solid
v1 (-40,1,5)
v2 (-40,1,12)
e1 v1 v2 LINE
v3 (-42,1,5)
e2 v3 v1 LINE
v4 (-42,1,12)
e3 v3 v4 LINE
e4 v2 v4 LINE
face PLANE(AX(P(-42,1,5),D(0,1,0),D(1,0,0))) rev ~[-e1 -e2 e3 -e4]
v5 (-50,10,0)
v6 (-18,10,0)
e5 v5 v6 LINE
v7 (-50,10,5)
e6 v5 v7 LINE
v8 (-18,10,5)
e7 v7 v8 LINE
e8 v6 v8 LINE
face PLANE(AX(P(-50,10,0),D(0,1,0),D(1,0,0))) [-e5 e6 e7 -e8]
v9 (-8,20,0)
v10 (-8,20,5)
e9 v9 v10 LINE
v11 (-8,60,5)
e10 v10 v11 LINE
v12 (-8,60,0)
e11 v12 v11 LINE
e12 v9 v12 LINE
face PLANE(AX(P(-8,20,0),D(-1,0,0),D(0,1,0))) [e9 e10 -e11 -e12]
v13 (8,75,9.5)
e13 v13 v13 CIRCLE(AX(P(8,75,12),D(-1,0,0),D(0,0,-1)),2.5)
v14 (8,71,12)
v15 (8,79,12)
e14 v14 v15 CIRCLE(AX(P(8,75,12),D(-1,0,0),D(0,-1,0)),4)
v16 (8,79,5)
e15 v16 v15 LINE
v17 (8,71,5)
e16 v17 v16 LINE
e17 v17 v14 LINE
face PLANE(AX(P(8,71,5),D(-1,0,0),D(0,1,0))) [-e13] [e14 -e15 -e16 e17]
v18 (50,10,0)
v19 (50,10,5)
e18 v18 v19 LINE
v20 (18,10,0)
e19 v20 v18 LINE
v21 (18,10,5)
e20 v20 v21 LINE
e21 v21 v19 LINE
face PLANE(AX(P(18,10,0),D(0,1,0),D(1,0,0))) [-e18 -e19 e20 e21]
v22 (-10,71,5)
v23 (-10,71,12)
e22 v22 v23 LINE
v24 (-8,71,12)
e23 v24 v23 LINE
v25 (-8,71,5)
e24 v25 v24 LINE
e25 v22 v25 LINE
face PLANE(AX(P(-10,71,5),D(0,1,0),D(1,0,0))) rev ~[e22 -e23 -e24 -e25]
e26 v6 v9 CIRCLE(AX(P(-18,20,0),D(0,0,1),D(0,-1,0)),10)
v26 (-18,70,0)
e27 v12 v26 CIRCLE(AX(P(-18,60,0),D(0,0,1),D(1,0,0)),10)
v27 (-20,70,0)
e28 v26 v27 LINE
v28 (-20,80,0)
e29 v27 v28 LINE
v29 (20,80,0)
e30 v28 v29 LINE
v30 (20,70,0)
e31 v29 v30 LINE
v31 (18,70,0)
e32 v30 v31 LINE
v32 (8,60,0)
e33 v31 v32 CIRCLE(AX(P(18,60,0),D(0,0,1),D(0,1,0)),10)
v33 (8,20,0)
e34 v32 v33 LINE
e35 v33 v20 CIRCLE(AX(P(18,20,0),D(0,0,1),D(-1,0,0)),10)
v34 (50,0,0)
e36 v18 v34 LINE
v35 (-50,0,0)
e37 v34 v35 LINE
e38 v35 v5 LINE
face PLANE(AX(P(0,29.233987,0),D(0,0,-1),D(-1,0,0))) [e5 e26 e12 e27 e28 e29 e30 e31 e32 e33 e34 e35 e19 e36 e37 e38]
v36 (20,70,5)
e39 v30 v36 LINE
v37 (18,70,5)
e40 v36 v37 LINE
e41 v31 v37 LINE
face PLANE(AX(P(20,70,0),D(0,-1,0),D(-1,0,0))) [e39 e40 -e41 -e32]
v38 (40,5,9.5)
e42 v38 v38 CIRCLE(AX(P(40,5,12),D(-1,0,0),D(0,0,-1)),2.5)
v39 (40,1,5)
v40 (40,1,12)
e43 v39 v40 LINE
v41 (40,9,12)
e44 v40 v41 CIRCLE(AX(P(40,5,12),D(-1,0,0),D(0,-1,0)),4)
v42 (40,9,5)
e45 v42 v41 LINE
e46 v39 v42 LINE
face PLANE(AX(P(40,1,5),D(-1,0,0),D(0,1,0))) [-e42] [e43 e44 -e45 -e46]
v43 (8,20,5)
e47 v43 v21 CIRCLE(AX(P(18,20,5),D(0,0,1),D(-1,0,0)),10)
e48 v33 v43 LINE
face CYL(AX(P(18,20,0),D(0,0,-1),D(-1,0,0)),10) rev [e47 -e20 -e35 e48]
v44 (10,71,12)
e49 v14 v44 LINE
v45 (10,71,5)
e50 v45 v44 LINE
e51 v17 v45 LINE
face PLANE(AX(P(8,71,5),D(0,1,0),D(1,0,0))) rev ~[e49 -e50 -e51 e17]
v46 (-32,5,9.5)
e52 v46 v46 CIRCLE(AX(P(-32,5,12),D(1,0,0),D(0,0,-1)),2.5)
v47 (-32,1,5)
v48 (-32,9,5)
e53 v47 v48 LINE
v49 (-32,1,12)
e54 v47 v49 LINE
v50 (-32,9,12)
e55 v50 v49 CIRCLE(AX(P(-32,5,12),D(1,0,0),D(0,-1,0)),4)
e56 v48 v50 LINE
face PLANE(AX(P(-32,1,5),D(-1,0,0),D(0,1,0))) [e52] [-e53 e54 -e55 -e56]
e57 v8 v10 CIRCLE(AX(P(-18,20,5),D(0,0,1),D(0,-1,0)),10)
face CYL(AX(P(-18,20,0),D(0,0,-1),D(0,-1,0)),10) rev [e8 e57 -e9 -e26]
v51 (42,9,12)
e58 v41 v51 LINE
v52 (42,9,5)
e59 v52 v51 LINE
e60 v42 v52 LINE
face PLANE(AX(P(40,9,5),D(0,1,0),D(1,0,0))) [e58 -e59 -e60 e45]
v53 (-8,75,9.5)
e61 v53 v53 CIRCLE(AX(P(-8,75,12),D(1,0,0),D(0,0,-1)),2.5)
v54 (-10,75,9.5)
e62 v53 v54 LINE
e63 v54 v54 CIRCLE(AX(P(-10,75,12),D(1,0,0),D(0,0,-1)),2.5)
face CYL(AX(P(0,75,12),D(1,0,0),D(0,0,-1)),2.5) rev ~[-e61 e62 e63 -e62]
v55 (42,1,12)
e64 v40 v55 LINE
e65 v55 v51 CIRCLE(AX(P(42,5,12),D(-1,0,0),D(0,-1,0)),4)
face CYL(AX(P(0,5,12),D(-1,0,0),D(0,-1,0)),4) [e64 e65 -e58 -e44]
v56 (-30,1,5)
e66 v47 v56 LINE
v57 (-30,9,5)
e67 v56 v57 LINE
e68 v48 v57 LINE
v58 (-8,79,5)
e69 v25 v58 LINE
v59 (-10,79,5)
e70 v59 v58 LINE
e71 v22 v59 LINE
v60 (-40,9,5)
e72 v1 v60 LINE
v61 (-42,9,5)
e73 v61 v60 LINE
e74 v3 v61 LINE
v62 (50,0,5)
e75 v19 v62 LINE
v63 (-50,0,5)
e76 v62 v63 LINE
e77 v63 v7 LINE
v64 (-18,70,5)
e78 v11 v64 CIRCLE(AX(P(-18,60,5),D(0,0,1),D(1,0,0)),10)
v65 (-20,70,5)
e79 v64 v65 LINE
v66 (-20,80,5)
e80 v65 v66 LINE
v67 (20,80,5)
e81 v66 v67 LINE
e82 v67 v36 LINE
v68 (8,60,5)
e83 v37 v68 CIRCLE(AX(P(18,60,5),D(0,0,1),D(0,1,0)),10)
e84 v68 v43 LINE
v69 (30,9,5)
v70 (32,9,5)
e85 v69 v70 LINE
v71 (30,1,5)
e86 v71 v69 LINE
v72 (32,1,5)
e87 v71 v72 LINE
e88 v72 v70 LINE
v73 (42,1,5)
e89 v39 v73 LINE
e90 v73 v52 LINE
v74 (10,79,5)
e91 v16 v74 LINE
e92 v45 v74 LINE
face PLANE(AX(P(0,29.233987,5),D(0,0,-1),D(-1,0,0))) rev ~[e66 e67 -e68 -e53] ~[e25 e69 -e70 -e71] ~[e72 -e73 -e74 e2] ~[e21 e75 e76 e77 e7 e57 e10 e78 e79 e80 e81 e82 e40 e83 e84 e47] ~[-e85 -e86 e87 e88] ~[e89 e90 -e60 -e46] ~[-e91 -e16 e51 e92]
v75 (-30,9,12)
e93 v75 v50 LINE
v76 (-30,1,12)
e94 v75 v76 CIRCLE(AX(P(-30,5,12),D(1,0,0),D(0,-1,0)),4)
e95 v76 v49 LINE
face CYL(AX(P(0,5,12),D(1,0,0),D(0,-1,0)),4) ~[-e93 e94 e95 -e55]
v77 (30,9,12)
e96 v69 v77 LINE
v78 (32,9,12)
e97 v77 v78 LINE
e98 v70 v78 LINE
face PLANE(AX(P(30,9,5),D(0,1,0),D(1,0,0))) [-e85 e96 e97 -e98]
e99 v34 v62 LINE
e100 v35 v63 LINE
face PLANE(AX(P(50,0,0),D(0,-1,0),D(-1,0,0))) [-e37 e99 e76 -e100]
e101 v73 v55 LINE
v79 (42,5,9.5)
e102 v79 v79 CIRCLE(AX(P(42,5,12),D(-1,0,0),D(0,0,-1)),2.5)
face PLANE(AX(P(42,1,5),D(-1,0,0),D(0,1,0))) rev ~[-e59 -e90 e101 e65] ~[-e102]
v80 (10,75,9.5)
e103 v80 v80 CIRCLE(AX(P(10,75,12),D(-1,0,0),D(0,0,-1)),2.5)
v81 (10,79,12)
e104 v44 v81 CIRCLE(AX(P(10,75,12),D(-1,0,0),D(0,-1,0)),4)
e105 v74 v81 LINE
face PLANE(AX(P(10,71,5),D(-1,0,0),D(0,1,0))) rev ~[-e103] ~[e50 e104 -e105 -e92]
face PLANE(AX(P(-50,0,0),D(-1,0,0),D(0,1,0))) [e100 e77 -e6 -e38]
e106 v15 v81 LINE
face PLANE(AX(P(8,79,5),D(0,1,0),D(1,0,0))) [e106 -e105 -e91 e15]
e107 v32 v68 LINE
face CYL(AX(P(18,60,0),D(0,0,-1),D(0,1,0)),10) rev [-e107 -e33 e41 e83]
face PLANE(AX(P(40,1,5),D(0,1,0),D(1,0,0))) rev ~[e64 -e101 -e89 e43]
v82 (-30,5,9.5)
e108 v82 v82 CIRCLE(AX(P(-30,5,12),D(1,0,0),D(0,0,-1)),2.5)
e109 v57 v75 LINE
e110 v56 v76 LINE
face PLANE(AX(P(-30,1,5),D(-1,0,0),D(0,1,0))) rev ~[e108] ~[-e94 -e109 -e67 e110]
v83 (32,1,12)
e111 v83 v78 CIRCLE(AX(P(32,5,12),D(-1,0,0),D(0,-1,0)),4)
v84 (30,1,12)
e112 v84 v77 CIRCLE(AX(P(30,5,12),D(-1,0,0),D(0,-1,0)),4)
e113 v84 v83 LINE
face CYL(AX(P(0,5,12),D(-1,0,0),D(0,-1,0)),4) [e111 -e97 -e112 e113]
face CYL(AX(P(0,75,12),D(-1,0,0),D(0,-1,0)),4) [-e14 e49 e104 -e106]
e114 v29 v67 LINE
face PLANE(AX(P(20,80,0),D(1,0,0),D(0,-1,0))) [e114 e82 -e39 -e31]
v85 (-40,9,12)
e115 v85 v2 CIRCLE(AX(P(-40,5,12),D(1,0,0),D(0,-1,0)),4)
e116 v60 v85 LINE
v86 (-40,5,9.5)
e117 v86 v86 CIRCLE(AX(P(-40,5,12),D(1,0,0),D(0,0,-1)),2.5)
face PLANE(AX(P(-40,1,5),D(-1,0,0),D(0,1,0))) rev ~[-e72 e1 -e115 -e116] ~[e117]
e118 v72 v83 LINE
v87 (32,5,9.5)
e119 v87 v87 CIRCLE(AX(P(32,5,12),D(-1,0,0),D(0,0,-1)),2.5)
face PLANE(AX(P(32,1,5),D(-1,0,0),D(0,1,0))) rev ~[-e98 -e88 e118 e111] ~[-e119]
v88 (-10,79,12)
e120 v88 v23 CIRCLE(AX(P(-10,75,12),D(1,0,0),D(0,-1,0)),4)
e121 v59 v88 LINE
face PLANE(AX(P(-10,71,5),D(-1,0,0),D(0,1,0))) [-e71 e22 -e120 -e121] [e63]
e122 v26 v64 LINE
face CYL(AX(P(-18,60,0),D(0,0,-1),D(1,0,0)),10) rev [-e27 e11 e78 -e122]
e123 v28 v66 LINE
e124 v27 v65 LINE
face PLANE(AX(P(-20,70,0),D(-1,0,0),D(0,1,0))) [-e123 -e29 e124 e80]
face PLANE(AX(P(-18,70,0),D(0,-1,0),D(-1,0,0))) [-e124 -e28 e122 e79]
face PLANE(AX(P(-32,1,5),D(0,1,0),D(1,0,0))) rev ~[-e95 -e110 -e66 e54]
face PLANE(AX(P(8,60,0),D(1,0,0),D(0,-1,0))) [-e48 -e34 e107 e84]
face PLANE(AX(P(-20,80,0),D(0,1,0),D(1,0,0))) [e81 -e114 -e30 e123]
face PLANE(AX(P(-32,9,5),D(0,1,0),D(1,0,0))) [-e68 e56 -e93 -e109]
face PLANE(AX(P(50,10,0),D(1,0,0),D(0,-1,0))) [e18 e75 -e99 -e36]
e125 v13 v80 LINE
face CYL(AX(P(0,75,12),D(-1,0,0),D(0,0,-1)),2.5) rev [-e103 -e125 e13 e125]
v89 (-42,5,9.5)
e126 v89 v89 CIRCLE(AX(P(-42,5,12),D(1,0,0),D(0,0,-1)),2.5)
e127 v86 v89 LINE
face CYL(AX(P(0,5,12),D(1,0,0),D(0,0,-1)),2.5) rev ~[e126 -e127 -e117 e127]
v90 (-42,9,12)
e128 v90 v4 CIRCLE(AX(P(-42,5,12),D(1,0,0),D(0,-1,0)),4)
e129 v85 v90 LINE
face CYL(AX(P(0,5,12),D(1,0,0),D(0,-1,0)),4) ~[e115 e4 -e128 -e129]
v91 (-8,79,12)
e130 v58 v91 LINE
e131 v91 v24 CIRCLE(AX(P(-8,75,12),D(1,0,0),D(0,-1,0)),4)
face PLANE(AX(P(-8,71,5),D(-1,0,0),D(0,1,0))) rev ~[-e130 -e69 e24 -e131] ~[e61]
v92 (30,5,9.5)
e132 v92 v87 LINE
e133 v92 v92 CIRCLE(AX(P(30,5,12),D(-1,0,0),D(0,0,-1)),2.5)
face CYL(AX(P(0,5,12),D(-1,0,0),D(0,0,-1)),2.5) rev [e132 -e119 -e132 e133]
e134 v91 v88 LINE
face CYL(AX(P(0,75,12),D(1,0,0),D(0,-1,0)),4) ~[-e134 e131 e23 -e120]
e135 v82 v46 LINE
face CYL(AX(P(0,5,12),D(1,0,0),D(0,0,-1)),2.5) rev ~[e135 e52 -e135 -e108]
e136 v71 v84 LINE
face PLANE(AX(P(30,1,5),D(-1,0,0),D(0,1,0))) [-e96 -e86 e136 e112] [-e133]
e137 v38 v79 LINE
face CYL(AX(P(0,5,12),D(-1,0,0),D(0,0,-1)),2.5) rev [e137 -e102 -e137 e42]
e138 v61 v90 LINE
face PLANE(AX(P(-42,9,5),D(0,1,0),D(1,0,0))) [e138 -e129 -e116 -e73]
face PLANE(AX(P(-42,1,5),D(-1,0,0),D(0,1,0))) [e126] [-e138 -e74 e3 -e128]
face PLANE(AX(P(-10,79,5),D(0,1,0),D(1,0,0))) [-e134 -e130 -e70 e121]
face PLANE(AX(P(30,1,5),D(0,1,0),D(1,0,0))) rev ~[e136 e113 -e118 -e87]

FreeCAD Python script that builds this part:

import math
import FreeCAD as App
import Part
import Sketcher

V = App.Vector
Q = App.Units.Quantity


def add_polygon(sketch, points):
    """Adds a closed chain of lines whose ends are joined by coincident constraints."""
    first, n = sketch.GeometryCount, len(points)
    for a, b in zip(points, points[1:] + points[:1]):
        sketch.addGeometry(Part.LineSegment(App.Vector(*a, 0), App.Vector(*b, 0)), False)
    for i in range(n):
        sketch.addConstraint(Sketcher.Constraint("Coincident", first + i, 2, first + (i + 1) % n, 1))

doc = App.newDocument("Part")
body = doc.addObject("PartDesign::Body", "Body")

sketch1 = doc.addObject("Sketcher::SketchObject", "Sketch")
body.addObject(sketch1)
sketch1.AttachmentSupport = (doc.XY_Plane, [""])
sketch1.MapMode = "FlatFace"
sketch1.addGeometry([
    Part.LineSegment(V(20, 80, 0), V(-20, 80, 0)),
    Part.LineSegment(V(-20, 80, 0), V(-20, 70, 0)),
    Part.LineSegment(V(-20, 70, 0), V(-18, 70, 0)),
    Part.ArcOfCircle(Part.Circle(V(-18, 60, 0), V(0, 0, 1), 10), math.radians(0), math.radians(90)),
    Part.LineSegment(V(-8, 60, 0), V(-8, 20, 0)),
    Part.ArcOfCircle(Part.Circle(V(-18, 20, 0), V(0, 0, 1), 10), math.radians(-90), math.radians(0)),
    Part.LineSegment(V(-18, 10, 0), V(-50, 10, 0)),
    Part.LineSegment(V(-50, 10, 0), V(-50, 0, 0)),
    Part.LineSegment(V(-50, 0, 0), V(50, 0, 0)),
    Part.LineSegment(V(50, 0, 0), V(50, 10, 0)),
    Part.LineSegment(V(50, 10, 0), V(18, 10, 0)),
    Part.ArcOfCircle(Part.Circle(V(18, 20, 0), V(0, 0, 1), 10), math.radians(180), math.radians(270)),
    Part.LineSegment(V(8, 20, 0), V(8, 60, 0)),
    Part.ArcOfCircle(Part.Circle(V(18, 60, 0), V(0, 0, 1), 10), math.radians(90), math.radians(180)),
    Part.LineSegment(V(18, 70, 0), V(20, 70, 0)),
    Part.LineSegment(V(20, 70, 0), V(20, 80, 0)),
], False)
sketch1.addConstraint([
    Sketcher.Constraint("Coincident", 0, 2, 1, 1),
    Sketcher.Constraint("Coincident", 1, 2, 2, 1),
    Sketcher.Constraint("Tangent", 2, 2, 3, 2),
    Sketcher.Constraint("Tangent", 3, 1, 4, 1),
    Sketcher.Constraint("Tangent", 4, 2, 5, 2),
    Sketcher.Constraint("Tangent", 5, 1, 6, 1),
    Sketcher.Constraint("Coincident", 6, 2, 7, 1),
    Sketcher.Constraint("Coincident", 7, 2, 8, 1),
    Sketcher.Constraint("Coincident", 8, 2, 9, 1),
    Sketcher.Constraint("Coincident", 9, 2, 10, 1),
    Sketcher.Constraint("Tangent", 10, 2, 11, 2),
    Sketcher.Constraint("Tangent", 11, 1, 12, 1),
    Sketcher.Constraint("Tangent", 12, 2, 13, 2),
    Sketcher.Constraint("Tangent", 13, 1, 14, 1),
    Sketcher.Constraint("Coincident", 14, 2, 15, 1),
    Sketcher.Constraint("Coincident", 15, 2, 0, 1),
    Sketcher.Constraint("Horizontal", 0),
    Sketcher.Constraint("Vertical", 1),
    Sketcher.Constraint("Horizontal", 2),
    Sketcher.Constraint("Vertical", 4),
    Sketcher.Constraint("Horizontal", 6),
    Sketcher.Constraint("Vertical", 7),
    Sketcher.Constraint("Horizontal", 8),
    Sketcher.Constraint("Vertical", 9),
    Sketcher.Constraint("Horizontal", 10),
    Sketcher.Constraint("Vertical", 12),
    Sketcher.Constraint("Horizontal", 14),
    Sketcher.Constraint("Vertical", 15),
    Sketcher.Constraint("Equal", 3, 5),
    Sketcher.Constraint("Equal", 5, 11),
    Sketcher.Constraint("Equal", 11, 13),
    Sketcher.Constraint("Symmetric", 7, 2, 8, 2, -1, 1),
    Sketcher.Constraint("Symmetric", 5, 3, 11, 3, -2),
    Sketcher.Constraint("Symmetric", 1, 2, 14, 2, -2),
    Sketcher.Constraint("Equal", 0, 4),
    Sketcher.Constraint("Equal", 1, 7),
    Sketcher.Constraint("Radius", 3, Q("10 mm")),
    Sketcher.Constraint("DistanceX", 0, 2, 0, 1, Q("40 mm")),
    Sketcher.Constraint("DistanceX", 2, 1, 2, 2, Q("2 mm")),
    Sketcher.Constraint("DistanceX", 6, 2, 6, 1, Q("32 mm")),
    Sketcher.Constraint("DistanceY", 1, 2, 1, 1, Q("10 mm")),
])
pad1 = doc.addObject("PartDesign::Pad", "Pad")
body.addObject(pad1)
pad1.Profile = sketch1
pad1.Length = 5

sketch2 = doc.addObject("Sketcher::SketchObject", "Sketch001")
body.addObject(sketch2)
sketch2.AttachmentSupport = (doc.XY_Plane, [""])
sketch2.MapMode = "FlatFace"
sketch2.AttachmentOffset = App.Placement(V(0, 0, 5), App.Rotation())
add_polygon(sketch2, [(-10, 79), (-10, 71), (-8, 71), (-8, 79)])
add_polygon(sketch2, [(8, 79), (8, 71), (10, 71), (10, 79)])
add_polygon(sketch2, [(-42, 9), (-42, 1), (-40, 1), (-40, 9)])
add_polygon(sketch2, [(-32, 9), (-32, 1), (-30, 1), (-30, 9)])
add_polygon(sketch2, [(30, 9), (30, 1), (32, 1), (32, 9)])
add_polygon(sketch2, [(40, 9), (40, 1), (42, 1), (42, 9)])
sketch2.addConstraint([
    Sketcher.Constraint("Vertical", 0),
    Sketcher.Constraint("Horizontal", 1),
    Sketcher.Constraint("Vertical", 2),
    Sketcher.Constraint("Horizontal", 3),
    Sketcher.Constraint("Vertical", 4),
    Sketcher.Constraint("Horizontal", 5),
    Sketcher.Constraint("Vertical", 6),
    Sketcher.Constraint("Horizontal", 7),
    Sketcher.Constraint("Vertical", 8),
    Sketcher.Constraint("Horizontal", 9),
    Sketcher.Constraint("Vertical", 10),
    Sketcher.Constraint("Horizontal", 11),
    Sketcher.Constraint("Vertical", 12),
    Sketcher.Constraint("Horizontal", 13),
    Sketcher.Constraint("Vertical", 14),
    Sketcher.Constraint("Horizontal", 15),
    Sketcher.Constraint("Vertical", 16),
    Sketcher.Constraint("Horizontal", 17),
    Sketcher.Constraint("Vertical", 18),
    Sketcher.Constraint("Horizontal", 19),
    Sketcher.Constraint("Vertical", 20),
    Sketcher.Constraint("Horizontal", 21),
    Sketcher.Constraint("Vertical", 22),
    Sketcher.Constraint("Horizontal", 23),
    Sketcher.Constraint("Symmetric", 1, 2, 4, 2, -2),
    Sketcher.Constraint("Symmetric", 3, 2, 6, 2, -2),
    Sketcher.Constraint("Symmetric", 13, 2, 16, 2, -2),
    Sketcher.Constraint("Symmetric", 15, 2, 18, 2, -2),
    Sketcher.Constraint("Symmetric", 9, 2, 20, 2, -2),
    Sketcher.Constraint("Symmetric", 11, 2, 22, 2, -2),
    Sketcher.Constraint("Horizontal", 9, 2, 12, 2),
    Sketcher.Constraint("Horizontal", 11, 2, 14, 2),
    Sketcher.Constraint("Equal", 7, 9),
    Sketcher.Constraint("Equal", 11, 13),
    Sketcher.Constraint("Equal", 6, 8),
    Sketcher.Constraint("DistanceX", 1, 1, 1, 2, Q("2 mm")),
    Sketcher.Constraint("DistanceY", 0, 2, 0, 1, Q("8 mm")),
    Sketcher.Constraint("DistanceX", 0, 2, -1, 1, Q("10 mm")),
    Sketcher.Constraint("DistanceY", -1, 1, 0, 2, Q("71 mm")),
    Sketcher.Constraint("DistanceX", 8, 2, -1, 1, Q("42 mm")),
    Sketcher.Constraint("DistanceY", -1, 1, 8, 2, Q("1 mm")),
    Sketcher.Constraint("DistanceX", 12, 2, -1, 1, Q("32 mm")),
])
pad2 = doc.addObject("PartDesign::Pad", "Pad001")
body.addObject(pad2)
pad2.Profile = sketch2
pad2.Length = 12

sketch3 = doc.addObject("Sketcher::SketchObject", "Sketch002")
body.addObject(sketch3)
sketch3.AttachmentSupport = (doc.YZ_Plane, [""])
sketch3.MapMode = "FlatFace"
sketch3.addGeometry([
    Part.Circle(V(75, 12, 0), V(0, 0, 1), 2.5),
    Part.Circle(V(5, 12, 0), V(0, 0, 1), 2.5),
    Part.LineSegment(V(79, 12, 0), V(79, 17, 0)),
    Part.LineSegment(V(79, 17, 0), V(71, 17, 0)),
    Part.LineSegment(V(71, 17, 0), V(71, 12, 0)),
    Part.ArcOfCircle(Part.Circle(V(75, 12, 0), V(0, 0, 1), 4), math.radians(0), math.radians(180)),
    Part.LineSegment(V(9, 12, 0), V(9, 17, 0)),
    Part.LineSegment(V(9, 17, 0), V(1, 17, 0)),
    Part.LineSegment(V(1, 17, 0), V(1, 12, 0)),
    Part.ArcOfCircle(Part.Circle(V(5, 12, 0), V(0, 0, 1), 4), math.radians(0), math.radians(180)),
], False)
sketch3.addConstraint([
    Sketcher.Constraint("Coincident", 2, 2, 3, 1),
    Sketcher.Constraint("Coincident", 3, 2, 4, 1),
    Sketcher.Constraint("Tangent", 4, 2, 5, 2),
    Sketcher.Constraint("Tangent", 5, 1, 2, 1),
    Sketcher.Constraint("Coincident", 6, 2, 7, 1),
    Sketcher.Constraint("Coincident", 7, 2, 8, 1),
    Sketcher.Constraint("Tangent", 8, 2, 9, 2),
    Sketcher.Constraint("Tangent", 9, 1, 6, 1),
    Sketcher.Constraint("Vertical", 2),
    Sketcher.Constraint("Horizontal", 3),
    Sketcher.Constraint("Vertical", 4),
    Sketcher.Constraint("Vertical", 6),
    Sketcher.Constraint("Horizontal", 7),
    Sketcher.Constraint("Vertical", 8),
    Sketcher.Constraint("Coincident", 5, 3, 0, 3),
    Sketcher.Constraint("Coincident", 9, 3, 1, 3),
    Sketcher.Constraint("Equal", 0, 1),
    Sketcher.Constraint("Equal", 5, 9),
    Sketcher.Constraint("Horizontal", 0, 3, 1, 3),
    Sketcher.Constraint("Horizontal", 3, 2, 6, 2),
    Sketcher.Constraint("Diameter", 0, Q("5 mm")),
    Sketcher.Constraint("Radius", 5, Q("4 mm")),
    Sketcher.Constraint("DistanceY", 2, 1, 2, 2, Q("5 mm")),
    Sketcher.Constraint("DistanceX", -1, 1, 0, 3, Q("75 mm")),
    Sketcher.Constraint("DistanceY", -1, 1, 0, 3, Q("12 mm")),
    Sketcher.Constraint("DistanceX", -1, 1, 1, 3, Q("5 mm")),
])
pocket1 = doc.addObject("PartDesign::Pocket", "Pocket")
body.addObject(pocket1)
pocket1.Profile = sketch3
pocket1.Type = "ThroughAll"
pocket1.Midplane = True

doc.recompute()
